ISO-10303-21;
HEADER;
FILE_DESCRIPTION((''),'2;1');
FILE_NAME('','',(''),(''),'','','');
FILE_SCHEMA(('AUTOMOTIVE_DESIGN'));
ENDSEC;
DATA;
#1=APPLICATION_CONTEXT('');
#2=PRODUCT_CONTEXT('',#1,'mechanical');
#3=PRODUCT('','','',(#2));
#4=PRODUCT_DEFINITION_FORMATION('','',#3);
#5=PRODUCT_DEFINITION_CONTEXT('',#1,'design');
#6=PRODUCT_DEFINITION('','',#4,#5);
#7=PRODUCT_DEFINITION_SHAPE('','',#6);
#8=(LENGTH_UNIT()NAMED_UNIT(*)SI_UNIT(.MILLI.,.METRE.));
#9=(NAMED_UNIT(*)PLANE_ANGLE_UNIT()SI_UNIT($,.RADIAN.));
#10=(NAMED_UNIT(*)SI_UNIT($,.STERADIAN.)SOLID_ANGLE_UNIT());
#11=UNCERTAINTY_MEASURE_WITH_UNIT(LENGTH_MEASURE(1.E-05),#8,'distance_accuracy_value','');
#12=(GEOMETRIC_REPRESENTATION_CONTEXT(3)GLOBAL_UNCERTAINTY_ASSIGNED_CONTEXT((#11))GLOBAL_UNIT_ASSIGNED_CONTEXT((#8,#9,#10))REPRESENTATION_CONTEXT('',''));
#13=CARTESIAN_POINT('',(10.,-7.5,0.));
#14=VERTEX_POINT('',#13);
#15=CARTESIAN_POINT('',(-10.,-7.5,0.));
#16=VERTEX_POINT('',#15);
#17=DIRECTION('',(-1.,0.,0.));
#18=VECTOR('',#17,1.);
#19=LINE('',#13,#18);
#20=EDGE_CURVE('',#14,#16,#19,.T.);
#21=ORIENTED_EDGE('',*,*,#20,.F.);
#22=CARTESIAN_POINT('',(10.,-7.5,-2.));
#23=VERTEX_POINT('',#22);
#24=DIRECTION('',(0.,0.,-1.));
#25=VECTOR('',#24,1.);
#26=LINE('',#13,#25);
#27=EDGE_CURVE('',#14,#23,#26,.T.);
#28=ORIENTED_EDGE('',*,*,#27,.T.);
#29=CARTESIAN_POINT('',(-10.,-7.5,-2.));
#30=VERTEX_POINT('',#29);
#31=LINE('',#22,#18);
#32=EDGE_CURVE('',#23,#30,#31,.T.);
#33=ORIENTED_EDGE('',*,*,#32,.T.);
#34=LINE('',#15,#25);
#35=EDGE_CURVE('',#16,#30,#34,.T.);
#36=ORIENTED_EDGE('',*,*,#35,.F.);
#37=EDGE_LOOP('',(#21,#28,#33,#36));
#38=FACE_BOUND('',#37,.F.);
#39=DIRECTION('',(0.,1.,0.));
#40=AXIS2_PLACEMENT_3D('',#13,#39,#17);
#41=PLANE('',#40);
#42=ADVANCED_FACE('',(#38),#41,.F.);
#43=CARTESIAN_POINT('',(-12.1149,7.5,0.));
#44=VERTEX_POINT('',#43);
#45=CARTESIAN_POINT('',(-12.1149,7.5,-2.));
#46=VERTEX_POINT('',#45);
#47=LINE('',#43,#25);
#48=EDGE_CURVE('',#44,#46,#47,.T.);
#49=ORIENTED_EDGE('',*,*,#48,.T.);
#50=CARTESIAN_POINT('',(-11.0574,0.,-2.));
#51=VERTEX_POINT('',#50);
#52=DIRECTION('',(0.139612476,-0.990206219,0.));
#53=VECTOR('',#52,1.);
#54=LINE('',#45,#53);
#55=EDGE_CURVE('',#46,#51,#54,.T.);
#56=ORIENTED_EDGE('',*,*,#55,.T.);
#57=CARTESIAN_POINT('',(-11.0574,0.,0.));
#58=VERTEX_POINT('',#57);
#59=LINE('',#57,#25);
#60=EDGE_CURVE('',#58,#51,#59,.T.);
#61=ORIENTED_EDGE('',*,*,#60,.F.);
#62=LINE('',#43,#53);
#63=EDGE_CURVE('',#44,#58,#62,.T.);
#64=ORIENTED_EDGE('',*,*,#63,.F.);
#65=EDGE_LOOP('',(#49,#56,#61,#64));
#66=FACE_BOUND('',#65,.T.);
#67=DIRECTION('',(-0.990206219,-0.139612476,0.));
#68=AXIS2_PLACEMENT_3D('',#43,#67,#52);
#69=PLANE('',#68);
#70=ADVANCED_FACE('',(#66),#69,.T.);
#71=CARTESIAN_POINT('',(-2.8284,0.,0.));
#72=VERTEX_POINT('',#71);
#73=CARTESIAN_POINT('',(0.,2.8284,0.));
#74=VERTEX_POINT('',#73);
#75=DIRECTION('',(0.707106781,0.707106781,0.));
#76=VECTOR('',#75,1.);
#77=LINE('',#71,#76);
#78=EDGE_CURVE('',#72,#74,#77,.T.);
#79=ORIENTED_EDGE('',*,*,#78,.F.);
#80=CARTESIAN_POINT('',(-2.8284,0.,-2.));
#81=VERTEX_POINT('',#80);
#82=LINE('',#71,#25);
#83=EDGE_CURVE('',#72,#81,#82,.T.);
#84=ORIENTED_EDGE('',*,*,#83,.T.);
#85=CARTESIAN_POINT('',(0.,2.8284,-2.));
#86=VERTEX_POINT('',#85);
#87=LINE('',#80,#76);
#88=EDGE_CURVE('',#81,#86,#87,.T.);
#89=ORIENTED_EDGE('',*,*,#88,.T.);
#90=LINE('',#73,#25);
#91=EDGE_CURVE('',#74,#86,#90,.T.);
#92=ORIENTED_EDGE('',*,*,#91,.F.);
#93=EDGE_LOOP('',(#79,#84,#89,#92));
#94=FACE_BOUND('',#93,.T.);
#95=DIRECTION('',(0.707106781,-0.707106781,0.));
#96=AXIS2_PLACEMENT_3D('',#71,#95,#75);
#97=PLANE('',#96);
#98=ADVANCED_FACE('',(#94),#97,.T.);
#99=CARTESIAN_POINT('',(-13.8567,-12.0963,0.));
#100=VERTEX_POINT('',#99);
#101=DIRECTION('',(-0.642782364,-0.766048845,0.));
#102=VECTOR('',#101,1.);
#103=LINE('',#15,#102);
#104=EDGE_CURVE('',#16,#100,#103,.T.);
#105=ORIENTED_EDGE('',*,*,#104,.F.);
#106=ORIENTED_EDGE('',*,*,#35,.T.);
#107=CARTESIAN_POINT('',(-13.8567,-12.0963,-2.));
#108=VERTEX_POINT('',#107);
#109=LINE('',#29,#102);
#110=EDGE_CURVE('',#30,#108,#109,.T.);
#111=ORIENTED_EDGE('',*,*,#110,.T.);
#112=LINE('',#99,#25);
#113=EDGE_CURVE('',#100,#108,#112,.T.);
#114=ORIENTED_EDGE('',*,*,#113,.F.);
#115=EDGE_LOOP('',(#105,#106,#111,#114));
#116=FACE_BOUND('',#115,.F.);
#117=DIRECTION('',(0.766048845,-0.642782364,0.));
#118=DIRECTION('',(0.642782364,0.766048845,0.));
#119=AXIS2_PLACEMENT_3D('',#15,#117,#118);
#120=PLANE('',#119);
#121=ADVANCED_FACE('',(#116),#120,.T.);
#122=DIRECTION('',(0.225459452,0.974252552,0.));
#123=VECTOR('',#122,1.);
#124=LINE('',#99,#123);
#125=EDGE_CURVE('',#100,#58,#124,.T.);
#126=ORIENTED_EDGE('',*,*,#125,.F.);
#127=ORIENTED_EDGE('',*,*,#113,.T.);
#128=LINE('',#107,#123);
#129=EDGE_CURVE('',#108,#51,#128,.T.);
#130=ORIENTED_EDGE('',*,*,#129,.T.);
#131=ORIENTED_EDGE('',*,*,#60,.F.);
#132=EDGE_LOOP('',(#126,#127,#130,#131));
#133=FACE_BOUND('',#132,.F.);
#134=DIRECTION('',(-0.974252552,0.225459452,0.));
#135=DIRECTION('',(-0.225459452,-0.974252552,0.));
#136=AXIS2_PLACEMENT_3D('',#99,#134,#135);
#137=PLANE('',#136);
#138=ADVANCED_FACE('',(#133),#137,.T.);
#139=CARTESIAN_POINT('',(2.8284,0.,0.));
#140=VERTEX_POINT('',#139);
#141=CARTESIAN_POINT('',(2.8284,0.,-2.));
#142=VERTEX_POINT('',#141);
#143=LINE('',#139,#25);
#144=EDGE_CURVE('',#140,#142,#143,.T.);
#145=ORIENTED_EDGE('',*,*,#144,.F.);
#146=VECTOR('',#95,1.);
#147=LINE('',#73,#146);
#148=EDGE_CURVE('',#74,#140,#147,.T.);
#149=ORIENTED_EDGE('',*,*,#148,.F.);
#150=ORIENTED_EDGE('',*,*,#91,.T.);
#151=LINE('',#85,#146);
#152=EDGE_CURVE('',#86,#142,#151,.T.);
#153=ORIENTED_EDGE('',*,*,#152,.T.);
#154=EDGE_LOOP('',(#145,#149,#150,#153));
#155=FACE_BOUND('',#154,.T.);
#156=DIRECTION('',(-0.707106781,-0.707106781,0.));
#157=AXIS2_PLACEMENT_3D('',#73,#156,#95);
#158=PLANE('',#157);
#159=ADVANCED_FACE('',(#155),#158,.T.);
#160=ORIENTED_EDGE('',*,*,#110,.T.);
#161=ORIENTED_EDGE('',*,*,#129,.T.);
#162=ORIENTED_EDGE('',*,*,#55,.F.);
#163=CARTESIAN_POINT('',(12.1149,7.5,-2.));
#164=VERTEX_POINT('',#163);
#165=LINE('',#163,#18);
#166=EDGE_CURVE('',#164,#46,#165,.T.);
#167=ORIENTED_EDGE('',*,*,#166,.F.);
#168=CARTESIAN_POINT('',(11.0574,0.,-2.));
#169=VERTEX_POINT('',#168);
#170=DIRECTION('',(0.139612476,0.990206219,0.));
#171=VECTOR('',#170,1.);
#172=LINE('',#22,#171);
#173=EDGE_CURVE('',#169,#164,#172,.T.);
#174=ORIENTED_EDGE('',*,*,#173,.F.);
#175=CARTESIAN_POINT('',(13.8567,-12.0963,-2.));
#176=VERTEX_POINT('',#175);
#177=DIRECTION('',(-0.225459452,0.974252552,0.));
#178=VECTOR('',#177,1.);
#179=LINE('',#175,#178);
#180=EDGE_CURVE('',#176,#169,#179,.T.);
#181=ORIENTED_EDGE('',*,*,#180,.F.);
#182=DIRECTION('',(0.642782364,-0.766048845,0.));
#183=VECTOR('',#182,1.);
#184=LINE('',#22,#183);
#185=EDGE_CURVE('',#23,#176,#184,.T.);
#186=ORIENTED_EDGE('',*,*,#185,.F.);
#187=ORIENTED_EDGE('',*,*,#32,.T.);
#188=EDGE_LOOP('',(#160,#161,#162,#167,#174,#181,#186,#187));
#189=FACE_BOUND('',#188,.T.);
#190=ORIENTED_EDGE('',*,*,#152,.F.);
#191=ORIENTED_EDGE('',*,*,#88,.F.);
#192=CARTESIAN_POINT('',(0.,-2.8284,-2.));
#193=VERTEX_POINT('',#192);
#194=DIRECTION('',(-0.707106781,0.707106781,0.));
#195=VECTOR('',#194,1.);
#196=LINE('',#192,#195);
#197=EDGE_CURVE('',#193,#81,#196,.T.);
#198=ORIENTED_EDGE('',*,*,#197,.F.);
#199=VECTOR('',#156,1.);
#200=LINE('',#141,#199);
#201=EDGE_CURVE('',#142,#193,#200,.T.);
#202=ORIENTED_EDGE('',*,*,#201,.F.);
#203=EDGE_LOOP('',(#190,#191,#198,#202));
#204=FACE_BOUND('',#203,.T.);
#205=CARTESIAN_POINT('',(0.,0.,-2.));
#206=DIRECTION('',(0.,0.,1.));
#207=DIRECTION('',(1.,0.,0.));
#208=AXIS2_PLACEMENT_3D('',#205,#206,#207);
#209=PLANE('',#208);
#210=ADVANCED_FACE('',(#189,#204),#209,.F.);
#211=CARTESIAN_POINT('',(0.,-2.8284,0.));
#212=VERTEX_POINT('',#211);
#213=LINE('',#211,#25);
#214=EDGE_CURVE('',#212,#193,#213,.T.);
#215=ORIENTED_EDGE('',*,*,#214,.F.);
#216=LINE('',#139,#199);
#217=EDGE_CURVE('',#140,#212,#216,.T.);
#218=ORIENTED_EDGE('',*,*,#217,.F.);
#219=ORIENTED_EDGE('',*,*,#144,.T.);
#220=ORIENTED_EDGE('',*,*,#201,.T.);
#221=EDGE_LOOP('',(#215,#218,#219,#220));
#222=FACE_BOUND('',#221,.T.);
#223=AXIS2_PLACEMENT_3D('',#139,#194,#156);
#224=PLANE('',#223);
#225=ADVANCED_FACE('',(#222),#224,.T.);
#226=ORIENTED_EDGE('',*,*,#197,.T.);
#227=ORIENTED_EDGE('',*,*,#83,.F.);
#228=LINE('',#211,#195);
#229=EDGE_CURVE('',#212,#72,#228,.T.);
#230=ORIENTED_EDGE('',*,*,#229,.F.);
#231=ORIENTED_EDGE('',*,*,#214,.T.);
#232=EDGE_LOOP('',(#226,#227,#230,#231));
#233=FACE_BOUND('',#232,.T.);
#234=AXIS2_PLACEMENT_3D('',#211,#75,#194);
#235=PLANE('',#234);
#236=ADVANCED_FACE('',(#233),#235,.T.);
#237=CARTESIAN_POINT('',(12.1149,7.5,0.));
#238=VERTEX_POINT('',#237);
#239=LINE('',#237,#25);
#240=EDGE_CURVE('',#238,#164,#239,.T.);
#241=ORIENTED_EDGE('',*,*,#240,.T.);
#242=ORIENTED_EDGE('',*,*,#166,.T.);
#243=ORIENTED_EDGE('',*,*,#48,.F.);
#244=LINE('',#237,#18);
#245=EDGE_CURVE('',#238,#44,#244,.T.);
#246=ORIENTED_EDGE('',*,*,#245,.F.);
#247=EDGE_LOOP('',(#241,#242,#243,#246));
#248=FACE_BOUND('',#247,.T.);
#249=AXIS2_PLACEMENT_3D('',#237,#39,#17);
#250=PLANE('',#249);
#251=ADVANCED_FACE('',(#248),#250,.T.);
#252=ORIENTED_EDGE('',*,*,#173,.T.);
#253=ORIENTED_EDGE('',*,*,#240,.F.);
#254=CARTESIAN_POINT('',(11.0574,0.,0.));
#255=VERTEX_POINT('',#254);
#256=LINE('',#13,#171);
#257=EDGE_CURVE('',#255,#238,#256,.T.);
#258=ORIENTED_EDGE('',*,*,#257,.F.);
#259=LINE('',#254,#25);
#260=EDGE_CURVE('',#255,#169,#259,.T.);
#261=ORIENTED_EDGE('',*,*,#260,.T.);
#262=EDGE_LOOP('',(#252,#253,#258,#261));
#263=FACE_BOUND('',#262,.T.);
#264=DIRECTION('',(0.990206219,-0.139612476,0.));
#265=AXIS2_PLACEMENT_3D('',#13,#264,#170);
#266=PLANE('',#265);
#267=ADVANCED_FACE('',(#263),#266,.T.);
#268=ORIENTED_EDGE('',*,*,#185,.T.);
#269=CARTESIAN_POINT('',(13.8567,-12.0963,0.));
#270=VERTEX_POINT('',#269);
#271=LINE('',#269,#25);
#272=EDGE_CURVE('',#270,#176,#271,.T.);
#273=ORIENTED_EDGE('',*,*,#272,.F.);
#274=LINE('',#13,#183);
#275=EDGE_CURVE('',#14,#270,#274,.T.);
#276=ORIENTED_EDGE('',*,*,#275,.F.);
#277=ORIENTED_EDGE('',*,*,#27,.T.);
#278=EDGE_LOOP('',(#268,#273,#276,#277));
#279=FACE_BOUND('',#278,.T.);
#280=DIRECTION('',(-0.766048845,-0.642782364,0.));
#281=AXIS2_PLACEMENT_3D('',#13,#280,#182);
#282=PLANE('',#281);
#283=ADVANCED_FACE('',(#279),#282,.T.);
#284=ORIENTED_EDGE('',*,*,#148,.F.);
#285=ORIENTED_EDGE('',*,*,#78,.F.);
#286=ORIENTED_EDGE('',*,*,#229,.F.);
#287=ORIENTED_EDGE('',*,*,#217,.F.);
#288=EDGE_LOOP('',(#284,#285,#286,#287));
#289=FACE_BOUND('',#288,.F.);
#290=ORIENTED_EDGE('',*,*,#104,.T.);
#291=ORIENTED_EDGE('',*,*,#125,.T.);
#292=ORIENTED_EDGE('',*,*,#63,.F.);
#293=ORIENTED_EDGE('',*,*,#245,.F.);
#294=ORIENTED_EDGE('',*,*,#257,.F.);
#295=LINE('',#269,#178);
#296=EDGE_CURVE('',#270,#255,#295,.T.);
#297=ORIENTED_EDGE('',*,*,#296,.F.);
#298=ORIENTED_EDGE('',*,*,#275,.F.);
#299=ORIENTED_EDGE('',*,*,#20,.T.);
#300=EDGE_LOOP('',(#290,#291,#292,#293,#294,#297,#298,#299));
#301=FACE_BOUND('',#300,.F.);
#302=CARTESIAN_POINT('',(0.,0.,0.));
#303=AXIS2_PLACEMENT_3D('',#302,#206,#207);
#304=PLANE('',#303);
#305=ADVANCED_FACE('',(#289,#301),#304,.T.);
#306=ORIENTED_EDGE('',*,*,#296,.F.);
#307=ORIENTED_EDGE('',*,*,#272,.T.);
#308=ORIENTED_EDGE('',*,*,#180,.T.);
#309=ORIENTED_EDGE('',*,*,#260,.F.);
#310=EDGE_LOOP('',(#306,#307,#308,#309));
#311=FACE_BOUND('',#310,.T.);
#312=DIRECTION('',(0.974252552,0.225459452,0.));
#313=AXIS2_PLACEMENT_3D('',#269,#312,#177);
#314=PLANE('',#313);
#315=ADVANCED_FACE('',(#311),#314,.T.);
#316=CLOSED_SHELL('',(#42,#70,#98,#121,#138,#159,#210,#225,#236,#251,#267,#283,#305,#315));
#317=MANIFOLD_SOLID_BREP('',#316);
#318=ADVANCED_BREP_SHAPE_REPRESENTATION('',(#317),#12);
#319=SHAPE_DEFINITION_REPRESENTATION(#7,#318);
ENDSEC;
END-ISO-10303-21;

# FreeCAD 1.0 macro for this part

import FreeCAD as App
import Part
import Sketcher

V = App.Vector
Q = App.Units.Quantity

doc = App.newDocument("Part")
params = doc.addObject("Spreadsheet::Sheet", "Params")
for row, (alias, value) in enumerate([
    ("sketch1_width", "20 mm"),
    ("sketch1_length", "4 mm"),
    ("pad1_length", "2 mm"),
    ("sketch2_length", "6 mm"),
    ("pad2_length", "2 mm"),
], start=1):
    params.set(f"A{row}", alias)
    params.set(f"B{row}", "=" + value)
    params.setAlias(f"B{row}", alias)

body = doc.addObject("PartDesign::Body", "Body")

# Sketch on XY plane
sketch1 = body.newObject("Sketcher::SketchObject", "Sketch")
sketch1.AttachmentSupport = (doc.getObject("XY_Plane"), [""])
sketch1.MapMode = "FlatFace"
sketch1.addGeometry([
    Part.LineSegment(V(12.1149, 7.5, 0), V(-12.1149, 7.5, 0)),  # 0
    Part.LineSegment(V(-12.1149, 7.5, 0), V(-10, -7.5, 0)),  # 1
    Part.LineSegment(V(-10, -7.5, 0), V(10, -7.5, 0)),  # 2
    Part.LineSegment(V(10, -7.5, 0), V(12.1149, 7.5, 0)),  # 3
    Part.LineSegment(V(0, 2.8284, 0), V(2.8284, 0, 0)),  # 4
    Part.LineSegment(V(2.8284, 0, 0), V(0, -2.8284, 0)),  # 5
    Part.LineSegment(V(0, -2.8284, 0), V(-2.8284, 0, 0)),  # 6
    Part.LineSegment(V(-2.8284, 0, 0), V(0, 2.8284, 0)),  # 7
], False)
sketch1.addConstraint([
    Sketcher.Constraint("Coincident", 0, 2, 1, 1),
    Sketcher.Constraint("Coincident", 1, 2, 2, 1),
    Sketcher.Constraint("Coincident", 2, 2, 3, 1),
    Sketcher.Constraint("Coincident", 3, 2, 0, 1),
    Sketcher.Constraint("Coincident", 4, 2, 5, 1),
    Sketcher.Constraint("Coincident", 5, 2, 6, 1),
    Sketcher.Constraint("Coincident", 6, 2, 7, 1),
    Sketcher.Constraint("Coincident", 7, 2, 4, 1),
    Sketcher.Constraint("Horizontal", 0),
    Sketcher.Constraint("Horizontal", 2),
    Sketcher.Constraint("Symmetric", 4, 2, 6, 2, -1, 1),
    Sketcher.Constraint("Symmetric", 5, 2, 7, 2, -1, 1),
    Sketcher.Constraint("PointOnObject", 4, 2, -1),
    Sketcher.Constraint("PointOnObject", 5, 2, -2),
    Sketcher.Constraint("Perpendicular", 4, 5),
    Sketcher.Constraint("Equal", 1, 3),
    Sketcher.Constraint("DistanceX", 2, 1, 2, 2, Q("20 mm")),
    Sketcher.Constraint("Distance", 4, Q("4 mm")),
    Sketcher.Constraint("DistanceY", 1, 2, 0, 2, Q("15 mm")),
    Sketcher.Constraint("DistanceX", 0, 2, 0, 1, Q("24.2298 mm")),
    Sketcher.Constraint("DistanceX", 1, 2, -1, 1, Q("10 mm")),
    Sketcher.Constraint("DistanceY", -1, 1, 0, 2, Q("7.5 mm")),
])
sketch1.setExpression("Constraints[16]", "Params.sketch1_width")
sketch1.setExpression("Constraints[17]", "Params.sketch1_length")
pad1 = body.newObject("PartDesign::Pad", "Pad")
pad1.Profile = sketch1
pad1.setExpression("Length", "Params.pad1_length")
pad1.Reversed = True

# Sketch on XY plane
sketch2 = body.newObject("Sketcher::SketchObject", "Sketch001")
sketch2.AttachmentSupport = (doc.getObject("XY_Plane"), [""])
sketch2.MapMode = "FlatFace"
sketch2.addGeometry([
    Part.LineSegment(V(11.057449, -0.000007, 0), V(10, -7.5, 0)),
    Part.LineSegment(V(10, -7.5, 0), V(13.8567, -12.0963, 0)),
    Part.LineSegment(V(13.8567, -12.0963, 0), V(11.0574, 0, 0)),
], False)
sketch2.addConstraint([
    Sketcher.Constraint("Coincident", 0, 2, 1, 1),
    Sketcher.Constraint("Coincident", 1, 2, 2, 1),
    Sketcher.Constraint("Coincident", 2, 2, 0, 1),
    Sketcher.Constraint("PointOnObject", 2, 2, -1),
    Sketcher.Constraint("Distance", 1, Q("6 mm")),
    Sketcher.Constraint("Angle", 1, Q("-50.0004 deg")),
    Sketcher.Constraint("DistanceX", -1, 1, 0, 2, Q("10 mm")),
    Sketcher.Constraint("DistanceY", 0, 2, -1, 1, Q("7.5 mm")),
    Sketcher.Constraint("Angle", 2, Q("103.03 deg")),
])
sketch2.setExpression("Constraints[4]", "Params.sketch2_length")
pad2 = body.newObject("PartDesign::Pad", "Pad001")
pad2.Profile = sketch2
pad2.setExpression("Length", "Params.pad2_length")
pad2.Reversed = True
doc.recompute()

mirrored = body.newObject("PartDesign::Mirrored", "Mirrored")
mirrored.Originals = [pad2]
mirrored.MirrorPlane = (doc.getObject("YZ_Plane"), [""])
body.Tip = mirrored

doc.recompute()
